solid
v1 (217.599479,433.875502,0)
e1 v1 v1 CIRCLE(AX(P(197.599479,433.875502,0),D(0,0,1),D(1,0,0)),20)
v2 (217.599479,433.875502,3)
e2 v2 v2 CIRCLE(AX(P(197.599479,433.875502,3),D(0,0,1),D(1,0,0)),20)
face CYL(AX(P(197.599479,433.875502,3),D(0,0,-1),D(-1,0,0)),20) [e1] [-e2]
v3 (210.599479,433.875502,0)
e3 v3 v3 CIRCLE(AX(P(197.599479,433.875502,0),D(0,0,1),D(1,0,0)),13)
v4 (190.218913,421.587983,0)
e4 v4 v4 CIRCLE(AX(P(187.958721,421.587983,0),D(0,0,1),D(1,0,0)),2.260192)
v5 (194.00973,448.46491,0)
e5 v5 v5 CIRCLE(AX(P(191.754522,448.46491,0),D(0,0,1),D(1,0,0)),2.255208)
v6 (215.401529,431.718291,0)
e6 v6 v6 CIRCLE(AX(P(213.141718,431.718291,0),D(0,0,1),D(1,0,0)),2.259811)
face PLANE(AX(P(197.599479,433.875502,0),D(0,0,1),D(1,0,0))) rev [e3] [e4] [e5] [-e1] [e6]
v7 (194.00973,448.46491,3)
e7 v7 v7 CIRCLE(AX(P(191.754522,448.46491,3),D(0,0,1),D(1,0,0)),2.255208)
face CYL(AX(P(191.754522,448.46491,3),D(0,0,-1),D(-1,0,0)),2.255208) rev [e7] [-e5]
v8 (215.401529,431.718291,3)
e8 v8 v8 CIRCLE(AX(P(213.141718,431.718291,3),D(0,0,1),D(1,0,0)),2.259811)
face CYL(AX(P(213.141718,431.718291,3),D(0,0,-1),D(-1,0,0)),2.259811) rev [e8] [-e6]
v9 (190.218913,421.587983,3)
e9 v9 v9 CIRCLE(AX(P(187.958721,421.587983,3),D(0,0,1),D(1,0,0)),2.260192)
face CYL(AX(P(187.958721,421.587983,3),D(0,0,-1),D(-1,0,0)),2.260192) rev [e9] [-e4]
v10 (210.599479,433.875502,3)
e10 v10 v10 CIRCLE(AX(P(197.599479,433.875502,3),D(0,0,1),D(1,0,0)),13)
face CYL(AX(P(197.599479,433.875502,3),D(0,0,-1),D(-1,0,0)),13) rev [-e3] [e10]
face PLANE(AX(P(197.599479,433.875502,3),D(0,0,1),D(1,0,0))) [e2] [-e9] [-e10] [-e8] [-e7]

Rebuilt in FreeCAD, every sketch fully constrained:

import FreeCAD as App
import Part
import Sketcher

doc = App.newDocument("Part")
body = doc.addObject("PartDesign::Body", "Body")

# Sketch on XY plane
sketch1 = body.newObject("Sketcher::SketchObject", "Sketch")
sketch1.AttachmentSupport = (doc.getObject("XY_Plane"), [""])
sketch1.MapMode = "FlatFace"
sketch1.addGeometry([
    Part.Circle(App.Vector(197.6, 433.9, 0), App.Vector(0, 0, 1), 20),  # 0
    Part.Circle(App.Vector(188, 421.6, 0), App.Vector(0, 0, 1), 2.3),  # 1
    Part.Circle(App.Vector(197.6, 433.9, 0), App.Vector(0, 0, 1), 13),  # 2
    Part.Circle(App.Vector(213.1, 431.7, 0), App.Vector(0, 0, 1), 2.3),  # 3
    Part.Circle(App.Vector(191.8, 448.5, 0), App.Vector(0, 0, 1), 2.3),  # 4
], False)
sketch1.addConstraint([
    Sketcher.Constraint("Coincident", 2, 3, 0, 3),
    Sketcher.Constraint("Diameter", 0, 40.0),
    Sketcher.Constraint("Diameter", 2, 26.0),
    Sketcher.Constraint("Diameter", 1, 4.520384),
    Sketcher.Constraint("Diameter", 3, 4.519622),
    Sketcher.Constraint("Diameter", 4, 4.510417),
    Sketcher.Constraint("DistanceY", -1, 1, 0, 3, 433.875502),
    Sketcher.Constraint("DistanceX", 1, 3, 4, 3, 3.795801),
    Sketcher.Constraint("DistanceX", -1, 1, 0, 3, 197.599479),
    Sketcher.Constraint("DistanceX", -1, 1, 1, 3, 187.958721),
    Sketcher.Constraint("DistanceX", -1, 1, 3, 3, 213.141718),
    Sketcher.Constraint("DistanceY", -1, 1, 3, 3, 431.718291),
    Sketcher.Constraint("DistanceY", -1, 1, 4, 3, 448.46491),
    Sketcher.Constraint("DistanceY", 1, 3, 0, 3, 12.287518),
])
pad1 = body.newObject("PartDesign::Pad", "Pad")
pad1.Profile = sketch1
pad1.Length = 3

doc.recompute()
